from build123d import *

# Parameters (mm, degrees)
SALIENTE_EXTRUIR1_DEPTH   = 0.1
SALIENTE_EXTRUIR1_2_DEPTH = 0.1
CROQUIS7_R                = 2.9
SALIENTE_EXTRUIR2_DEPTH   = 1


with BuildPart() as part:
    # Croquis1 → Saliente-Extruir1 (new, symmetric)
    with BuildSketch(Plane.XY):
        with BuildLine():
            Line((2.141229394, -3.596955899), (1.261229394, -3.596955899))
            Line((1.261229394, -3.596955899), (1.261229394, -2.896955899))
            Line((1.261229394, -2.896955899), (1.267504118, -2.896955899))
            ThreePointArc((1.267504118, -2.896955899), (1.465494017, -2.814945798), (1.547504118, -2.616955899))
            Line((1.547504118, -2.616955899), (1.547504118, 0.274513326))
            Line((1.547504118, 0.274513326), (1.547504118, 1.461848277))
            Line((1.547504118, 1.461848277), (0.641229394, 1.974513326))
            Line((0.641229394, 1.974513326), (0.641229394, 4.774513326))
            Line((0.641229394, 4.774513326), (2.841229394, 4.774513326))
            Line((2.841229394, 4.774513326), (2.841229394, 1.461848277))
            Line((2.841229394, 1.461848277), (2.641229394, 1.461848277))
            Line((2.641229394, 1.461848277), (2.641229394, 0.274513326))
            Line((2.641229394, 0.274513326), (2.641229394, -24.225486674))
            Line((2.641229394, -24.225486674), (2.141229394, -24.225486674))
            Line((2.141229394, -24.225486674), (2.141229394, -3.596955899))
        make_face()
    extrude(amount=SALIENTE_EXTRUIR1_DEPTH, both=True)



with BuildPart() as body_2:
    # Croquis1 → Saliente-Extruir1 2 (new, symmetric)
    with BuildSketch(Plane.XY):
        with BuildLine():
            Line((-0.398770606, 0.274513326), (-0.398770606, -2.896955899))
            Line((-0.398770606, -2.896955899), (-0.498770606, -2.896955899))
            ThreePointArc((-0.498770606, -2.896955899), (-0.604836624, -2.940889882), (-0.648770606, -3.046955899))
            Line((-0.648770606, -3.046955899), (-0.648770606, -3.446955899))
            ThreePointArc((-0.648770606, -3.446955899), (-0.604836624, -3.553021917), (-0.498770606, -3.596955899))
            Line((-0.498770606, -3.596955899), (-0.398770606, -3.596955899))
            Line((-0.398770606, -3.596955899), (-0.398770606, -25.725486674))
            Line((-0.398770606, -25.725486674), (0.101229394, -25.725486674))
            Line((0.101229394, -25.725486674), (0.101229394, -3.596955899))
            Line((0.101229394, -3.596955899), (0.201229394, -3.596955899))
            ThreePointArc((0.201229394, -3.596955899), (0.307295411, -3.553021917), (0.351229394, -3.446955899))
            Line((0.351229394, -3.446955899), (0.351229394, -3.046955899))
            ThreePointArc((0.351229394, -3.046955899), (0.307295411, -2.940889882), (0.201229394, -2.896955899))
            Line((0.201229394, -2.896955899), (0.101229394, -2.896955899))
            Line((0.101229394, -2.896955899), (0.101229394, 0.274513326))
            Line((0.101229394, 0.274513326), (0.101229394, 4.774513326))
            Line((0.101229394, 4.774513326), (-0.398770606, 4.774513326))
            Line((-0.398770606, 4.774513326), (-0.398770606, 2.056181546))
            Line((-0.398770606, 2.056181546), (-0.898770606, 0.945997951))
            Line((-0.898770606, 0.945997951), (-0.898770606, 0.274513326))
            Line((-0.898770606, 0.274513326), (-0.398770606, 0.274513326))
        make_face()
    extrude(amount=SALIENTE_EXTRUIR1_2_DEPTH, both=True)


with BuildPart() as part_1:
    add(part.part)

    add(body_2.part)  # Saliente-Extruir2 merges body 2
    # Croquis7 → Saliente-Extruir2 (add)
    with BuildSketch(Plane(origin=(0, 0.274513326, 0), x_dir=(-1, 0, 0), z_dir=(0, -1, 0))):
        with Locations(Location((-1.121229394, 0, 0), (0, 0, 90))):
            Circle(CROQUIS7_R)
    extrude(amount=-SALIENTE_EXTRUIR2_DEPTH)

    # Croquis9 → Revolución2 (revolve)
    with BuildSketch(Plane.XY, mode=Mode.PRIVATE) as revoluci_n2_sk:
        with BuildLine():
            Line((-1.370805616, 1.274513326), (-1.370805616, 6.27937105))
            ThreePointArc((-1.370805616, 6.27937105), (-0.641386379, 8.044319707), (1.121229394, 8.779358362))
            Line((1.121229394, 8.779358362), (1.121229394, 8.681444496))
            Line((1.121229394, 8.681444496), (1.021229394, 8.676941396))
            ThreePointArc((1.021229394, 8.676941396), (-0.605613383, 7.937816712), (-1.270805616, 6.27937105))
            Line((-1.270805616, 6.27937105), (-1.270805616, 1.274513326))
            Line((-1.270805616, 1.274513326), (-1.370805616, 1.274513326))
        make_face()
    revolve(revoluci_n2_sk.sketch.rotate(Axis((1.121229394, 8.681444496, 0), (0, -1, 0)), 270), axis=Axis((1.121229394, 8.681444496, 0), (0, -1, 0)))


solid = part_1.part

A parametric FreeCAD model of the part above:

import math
import FreeCAD as App
import Part
import Sketcher
from FreeCAD import Vector
Q = App.Units.Quantity

doc = App.newDocument("Part")
params = doc.addObject("Spreadsheet::Sheet", "Params")
for row, (alias, value) in enumerate([
    ("sketch1_radius", "0.28 mm"),
    ("sketch1_width", "0.5 mm"),
    ("sketch1_width2", "0.2 mm"),
    ("sketch1_width3", "2.2 mm"),
    ("sketch1_height", "2.8 mm"),
    ("pad1_length", "0.2 mm"),
    ("sketch2_radius", "0.15 mm"),
    ("sketch2_width", "0.1 mm"),
    ("sketch2_width2", "0.5 mm"),
    ("sketch2_height", "0.4 mm"),
    ("pad2_length", "0.2 mm"),
    ("sketch3_diameter", "5.8 mm"),
    ("pad3_length", "1 mm"),
    ("sketch4_radius", "2.4 mm"),
    ("sketch4_radius2", "2.5 mm"),
    ("revolution_angle", "360 deg"),
], start=1):
    params.set(f"A{row}", alias)
    params.set(f"B{row}", "=" + value)
    params.setAlias(f"B{row}", alias)

body = doc.addObject("PartDesign::Body", "Body")

# Sketch on XY plane
sketch1 = body.newObject("Sketcher::SketchObject", "Sketch")
sketch1.AttachmentSupport = (doc.getObject("XY_Plane"), [""])
sketch1.MapMode = "FlatFace"
sketch1.addGeometry([
    Part.LineSegment(Vector(1.261229, -3.596956, 0), Vector(2.141229, -3.596956, 0)),  # 0
    Part.LineSegment(Vector(2.141229, -3.596956, 0), Vector(2.141229, -24.225487, 0)),  # 1
    Part.LineSegment(Vector(2.141229, -24.225487, 0), Vector(2.641229, -24.225487, 0)),  # 2
    Part.LineSegment(Vector(2.641229, -24.225487, 0), Vector(2.641229, 1.461848, 0)),  # 3
    Part.LineSegment(Vector(2.641229, 1.461848, 0), Vector(2.841229, 1.461848, 0)),  # 4
    Part.LineSegment(Vector(2.841229, 1.461848, 0), Vector(2.841229, 4.774513, 0)),  # 5
    Part.LineSegment(Vector(2.841229, 4.774513, 0), Vector(0.641229, 4.774513, 0)),  # 6
    Part.LineSegment(Vector(0.641229, 4.774513, 0), Vector(0.641229, 1.974513, 0)),  # 7
    Part.LineSegment(Vector(0.641229, 1.974513, 0), Vector(1.547504, 1.461848, 0)),  # 8
    Part.LineSegment(Vector(1.547504, 1.461848, 0), Vector(1.547504, -2.616956, 0)),  # 9
    Part.ArcOfCircle(Part.Circle(Vector(1.267504, -2.616956, 0), Vector(0, 0, 1), 0.28), math.radians(-90), math.radians(0)),  # 10
    Part.LineSegment(Vector(1.267504, -2.896956, 0), Vector(1.261229, -2.896956, 0)),  # 11
    Part.LineSegment(Vector(1.261229, -2.896956, 0), Vector(1.261229, -3.596956, 0)),  # 12
], False)
sketch1.addConstraint([
    Sketcher.Constraint("Coincident", 0, 2, 1, 1),
    Sketcher.Constraint("Coincident", 1, 2, 2, 1),
    Sketcher.Constraint("Coincident", 2, 2, 3, 1),
    Sketcher.Constraint("Coincident", 3, 2, 4, 1),
    Sketcher.Constraint("Coincident", 4, 2, 5, 1),
    Sketcher.Constraint("Coincident", 5, 2, 6, 1),
    Sketcher.Constraint("Coincident", 6, 2, 7, 1),
    Sketcher.Constraint("Coincident", 7, 2, 8, 1),
    Sketcher.Constraint("Coincident", 8, 2, 9, 1),
    Sketcher.Constraint("Tangent", 9, 2, 10, 2),
    Sketcher.Constraint("Tangent", 10, 1, 11, 1),
    Sketcher.Constraint("Coincident", 11, 2, 12, 1),
    Sketcher.Constraint("Coincident", 12, 2, 0, 1),
    Sketcher.Constraint("Horizontal", 0),
    Sketcher.Constraint("Vertical", 1),
    Sketcher.Constraint("Horizontal", 2),
    Sketcher.Constraint("Vertical", 3),
    Sketcher.Constraint("Horizontal", 4),
    Sketcher.Constraint("Vertical", 5),
    Sketcher.Constraint("Horizontal", 6),
    Sketcher.Constraint("Vertical", 7),
    Sketcher.Constraint("Vertical", 9),
    Sketcher.Constraint("Horizontal", 11),
    Sketcher.Constraint("Vertical", 12),
    Sketcher.Constraint("Horizontal", 4, 2, 8, 2),
    Sketcher.Constraint("Radius", 10, Q("0.28 mm")),
    Sketcher.Constraint("DistanceX", 2, 1, 2, 2, Q("0.5 mm")),
    Sketcher.Constraint("DistanceX", 4, 1, 4, 2, Q("0.2 mm")),
    Sketcher.Constraint("DistanceX", 6, 2, 6, 1, Q("2.2 mm")),
    Sketcher.Constraint("DistanceY", 7, 2, 7, 1, Q("2.8 mm")),
    Sketcher.Constraint("DistanceY", 12, 2, 12, 1, Q("0.7 mm")),
    Sketcher.Constraint("DistanceY", 2, 2, 5, 2, Q("29 mm")),
    Sketcher.Constraint("DistanceX", 0, 1, 0, 2, Q("0.88 mm")),
    Sketcher.Constraint("DistanceY", 1, 2, 1, 1, Q("20.628531 mm")),
    Sketcher.Constraint("Distance", 8, Q("1.04123 mm")),
    Sketcher.Constraint("DistanceX", 11, 2, 11, 1, Q("0.006275 mm")),
    Sketcher.Constraint("DistanceX", -1, 1, 0, 2, Q("2.141229 mm")),
    Sketcher.Constraint("DistanceY", -1, 1, 3, 2, Q("1.461848 mm")),
])
sketch1.setExpression("Constraints[25]", "Params.sketch1_radius")
sketch1.setExpression("Constraints[26]", "Params.sketch1_width")
sketch1.setExpression("Constraints[27]", "Params.sketch1_width2")
sketch1.setExpression("Constraints[28]", "Params.sketch1_width3")
sketch1.setExpression("Constraints[29]", "Params.sketch1_height")
pad1 = body.newObject("PartDesign::Pad", "Pad")
pad1.Profile = sketch1
pad1.setExpression("Length", "Params.pad1_length")
pad1.Midplane = True
body2 = doc.addObject("PartDesign::Body", "Body001")

# Sketch on XY plane
sketch2 = body2.newObject("Sketcher::SketchObject", "Sketch001")
sketch2.AttachmentSupport = (doc.getObject("XY_Plane001"), [""])
sketch2.MapMode = "FlatFace"
sketch2.addGeometry([
    Part.LineSegment(Vector(-0.398771, 0.274513, 0), Vector(-0.398771, -2.896956, 0)),  # 0
    Part.LineSegment(Vector(-0.398771, -2.896956, 0), Vector(-0.498771, -2.896956, 0)),  # 1
    Part.ArcOfCircle(Part.Circle(Vector(-0.498771, -3.046956, 0), Vector(0, 0, 1), 0.15), math.radians(90), math.radians(180)),  # 2
    Part.LineSegment(Vector(-0.648771, -3.046956, 0), Vector(-0.648771, -3.446956, 0)),  # 3
    Part.ArcOfCircle(Part.Circle(Vector(-0.498771, -3.446956, 0), Vector(0, 0, 1), 0.15), math.radians(179.999999), math.radians(270.000001)),  # 4
    Part.LineSegment(Vector(-0.498771, -3.596956, 0), Vector(-0.398771, -3.596956, 0)),  # 5
    Part.LineSegment(Vector(-0.398771, -3.596956, 0), Vector(-0.398771, -25.725487, 0)),  # 6
    Part.LineSegment(Vector(-0.398771, -25.725487, 0), Vector(0.101229, -25.725487, 0)),  # 7
    Part.LineSegment(Vector(0.101229, -25.725487, 0), Vector(0.101229, -3.596956, 0)),  # 8
    Part.LineSegment(Vector(0.101229, -3.596956, 0), Vector(0.201229, -3.596956, 0)),  # 9
    Part.ArcOfCircle(Part.Circle(Vector(0.201229, -3.446956, 0), Vector(0, 0, 1), 0.15), math.radians(-90), math.radians(0)),  # 10
    Part.LineSegment(Vector(0.351229, -3.446956, 0), Vector(0.351229, -3.046956, 0)),  # 11
    Part.ArcOfCircle(Part.Circle(Vector(0.201229, -3.046956, 0), Vector(0, 0, 1), 0.15), math.radians(0), math.radians(90)),  # 12
    Part.LineSegment(Vector(0.201229, -2.896956, 0), Vector(0.101229, -2.896956, 0)),  # 13
    Part.LineSegment(Vector(0.101229, -2.896956, 0), Vector(0.101229, 4.774513, 0)),  # 14
    Part.LineSegment(Vector(0.101229, 4.774513, 0), Vector(-0.398771, 4.774513, 0)),  # 15
    Part.LineSegment(Vector(-0.398771, 4.774513, 0), Vector(-0.398771, 2.056182, 0)),  # 16
    Part.LineSegment(Vector(-0.398771, 2.056182, 0), Vector(-0.898771, 0.945998, 0)),  # 17
    Part.LineSegment(Vector(-0.898771, 0.945998, 0), Vector(-0.898771, 0.274513, 0)),  # 18
    Part.LineSegment(Vector(-0.898771, 0.274513, 0), Vector(-0.398771, 0.274513, 0)),  # 19
], False)
sketch2.addConstraint([
    Sketcher.Constraint("Coincident", 0, 2, 1, 1),
    Sketcher.Constraint("Tangent", 1, 2, 2, 1),
    Sketcher.Constraint("Tangent", 2, 2, 3, 1),
    Sketcher.Constraint("Tangent", 3, 2, 4, 1),
    Sketcher.Constraint("Tangent", 4, 2, 5, 1),
    Sketcher.Constraint("Coincident", 5, 2, 6, 1),
    Sketcher.Constraint("Coincident", 6, 2, 7, 1),
    Sketcher.Constraint("Coincident", 7, 2, 8, 1),
    Sketcher.Constraint("Coincident", 8, 2, 9, 1),
    Sketcher.Constraint("Tangent", 9, 2, 10, 1),
    Sketcher.Constraint("Tangent", 10, 2, 11, 1),
    Sketcher.Constraint("Tangent", 11, 2, 12, 1),
    Sketcher.Constraint("Tangent", 12, 2, 13, 1),
    Sketcher.Constraint("Coincident", 13, 2, 14, 1),
    Sketcher.Constraint("Coincident", 14, 2, 15, 1),
    Sketcher.Constraint("Coincident", 15, 2, 16, 1),
    Sketcher.Constraint("Coincident", 16, 2, 17, 1),
    Sketcher.Constraint("Coincident", 17, 2, 18, 1),
    Sketcher.Constraint("Coincident", 18, 2, 19, 1),
    Sketcher.Constraint("Coincident", 19, 2, 0, 1),
    Sketcher.Constraint("Vertical", 0),
    Sketcher.Constraint("Horizontal", 1),
    Sketcher.Constraint("Vertical", 3),
    Sketcher.Constraint("Horizontal", 5),
    Sketcher.Constraint("Vertical", 6),
    Sketcher.Constraint("Horizontal", 7),
    Sketcher.Constraint("Vertical", 8),
    Sketcher.Constraint("Horizontal", 9),
    Sketcher.Constraint("Vertical", 11),
    Sketcher.Constraint("Horizontal", 13),
    Sketcher.Constraint("Vertical", 14),
    Sketcher.Constraint("Horizontal", 15),
    Sketcher.Constraint("Vertical", 16),
    Sketcher.Constraint("Vertical", 18),
    Sketcher.Constraint("Horizontal", 19),
    Sketcher.Constraint("Equal", 2, 4),
    Sketcher.Constraint("Equal", 4, 10),
    Sketcher.Constraint("Equal", 10, 12),
    Sketcher.Constraint("Horizontal", 4, 3, 10, 3),
    Sketcher.Constraint("Horizontal", 2, 3, 12, 3),
    Sketcher.Constraint("Vertical", 0, 2, 5, 2),
    Sketcher.Constraint("Vertical", 8, 2, 13, 2),
    Sketcher.Constraint("Vertical", 6, 2, 15, 2),
    Sketcher.Constraint("Equal", 5, 9),
    Sketcher.Constraint("Equal", 15, 19),
    Sketcher.Constraint("Radius", 2, Q("0.15 mm")),
    Sketcher.Constraint("DistanceX", 1, 2, 1, 1, Q("0.1 mm")),
    Sketcher.Constraint("DistanceX", 7, 1, 7, 2, Q("0.5 mm")),
    Sketcher.Constraint("DistanceY", 3, 2, 3, 1, Q("0.4 mm")),
    Sketcher.Constraint("DistanceY", 0, 2, 0, 1, Q("3.171469 mm")),
    Sketcher.Constraint("DistanceY", 6, 2, 6, 1, Q("22.128531 mm")),
    Sketcher.Constraint("DistanceY", 14, 1, 14, 2, Q("7.671469 mm")),
    Sketcher.Constraint("DistanceY", 16, 2, 16, 1, Q("2.718332 mm")),
    Sketcher.Constraint("DistanceY", 18, 2, 18, 1, Q("0.671485 mm")),
    Sketcher.Constraint("DistanceX", 2, 3, -1, 1, Q("0.498771 mm")),
    Sketcher.Constraint("DistanceY", -1, 1, 16, 2, Q("2.056182 mm")),
])
sketch2.setExpression("Constraints[45]", "Params.sketch2_radius")
sketch2.setExpression("Constraints[46]", "Params.sketch2_width")
sketch2.setExpression("Constraints[47]", "Params.sketch2_width2")
sketch2.setExpression("Constraints[48]", "Params.sketch2_height")
pad2 = body2.newObject("PartDesign::Pad", "Pad001")
pad2.Profile = sketch2
pad2.setExpression("Length", "Params.pad2_length")
pad2.Midplane = True
body.AllowCompound = True
doc.recompute()

boolean = body.newObject("PartDesign::Boolean", "Boolean")
boolean.Type = "Fuse"
boolean.addObjects([body2])

# Sketch on XZ plane
sketch3 = body.newObject("Sketcher::SketchObject", "Sketch002")
sketch3.AttachmentSupport = (doc.getObject("XZ_Plane"), [""])
sketch3.MapMode = "FlatFace"
sketch3.AttachmentOffset = App.Placement(Vector(0, 0, -0.274513), App.Rotation())
sketch3.addGeometry(Part.Circle(Vector(1.121229, 0, 0), Vector(0, 0, 1), 2.9), False)
sketch3.addConstraint([
    Sketcher.Constraint("PointOnObject", 0, 3, -1),
    Sketcher.Constraint("Diameter", 0, Q("5.8 mm")),
    Sketcher.Constraint("DistanceX", -1, 1, 0, 3, Q("1.121229 mm")),
])
sketch3.setExpression("Constraints[1]", "Params.sketch3_diameter")
pad3 = body.newObject("PartDesign::Pad", "Pad002")
pad3.Profile = sketch3
pad3.setExpression("Length", "Params.pad3_length")
pad3.Reversed = True

# Sketch on XY plane
sketch4 = body.newObject("Sketcher::SketchObject", "Sketch003")
sketch4.AttachmentSupport = (doc.getObject("XY_Plane"), [""])
sketch4.MapMode = "FlatFace"
sketch4.addGeometry([
    Part.LineSegment(Vector(-1.370806, 6.279371, 0), Vector(-1.370806, 1.274513, 0)),  # 0
    Part.LineSegment(Vector(-1.370806, 1.274513, 0), Vector(-1.270806, 1.274513, 0)),  # 1
    Part.LineSegment(Vector(-1.270806, 1.274513, 0), Vector(-1.270806, 6.279371, 0)),  # 2
    Part.ArcOfCircle(Part.Circle(Vector(1.129194, 6.279371, 0), Vector(0, 0, 1), 2.4), math.radians(92.578344), math.radians(180)),  # 3
    Part.LineSegment(Vector(1.021229, 8.676941, 0), Vector(1.121229, 8.681444, 0)),  # 4
    Part.LineSegment(Vector(1.121229, 8.681444, 0), Vector(1.121229, 8.779358, 0)),  # 5
    Part.ArcOfCircle(Part.Circle(Vector(1.129194, 6.279371, 0), Vector(0, 0, 1), 2.5), math.radians(90.182544), math.radians(180)),  # 6
], False)
sketch4.addGeometry(Part.LineSegment(Vector(1.121229, 8.779358, 0), Vector(1.121229, 1.274513, 0)), True)  # axis
sketch4.addConstraint([
    Sketcher.Constraint("Coincident", 0, 2, 1, 1),
    Sketcher.Constraint("Coincident", 1, 2, 2, 1),
    Sketcher.Constraint("Tangent", 2, 2, 3, 2),
    Sketcher.Constraint("Tangent", 3, 1, 4, 1),
    Sketcher.Constraint("Coincident", 4, 2, 5, 1),
    Sketcher.Constraint("Coincident", 5, 2, 6, 1),
    Sketcher.Constraint("Tangent", 6, 2, 0, 1),
    Sketcher.Constraint("Vertical", 0),
    Sketcher.Constraint("Horizontal", 1),
    Sketcher.Constraint("Vertical", 2),
    Sketcher.Constraint("Vertical", 5),
    Sketcher.Constraint("Vertical", 7),
    Sketcher.Constraint("Coincident", 6, 3, 3, 3),
    Sketcher.Constraint("Coincident", 7, 1, 5, 2),
    Sketcher.Constraint("Horizontal", 1, 2, 7, 2),
    Sketcher.Constraint("Radius", 3, Q("2.4 mm")),
    Sketcher.Constraint("Radius", 6, Q("2.5 mm")),
    Sketcher.Constraint("DistanceX", 3, 1, 4, 2, Q("0.1 mm")),
    Sketcher.Constraint("DistanceY", 0, 2, 0, 1, Q("5.004858 mm")),
    Sketcher.Constraint("DistanceY", -1, 1, 3, 3, Q("6.279371 mm")),
    Sketcher.Constraint("DistanceX", -1, 1, 3, 1, Q("1.021229 mm")),
    Sketcher.Constraint("DistanceY", -1, 1, 3, 1, Q("8.676941 mm")),
])
sketch4.setExpression("Constraints[15]", "Params.sketch4_radius")
sketch4.setExpression("Constraints[16]", "Params.sketch4_radius2")
revolution = body.newObject("PartDesign::Revolution", "Revolution")
revolution.Profile = sketch4
revolution.ReferenceAxis = (sketch4, ["Axis0"])
revolution.setExpression("Angle", "Params.revolution_angle")

doc.recompute()
